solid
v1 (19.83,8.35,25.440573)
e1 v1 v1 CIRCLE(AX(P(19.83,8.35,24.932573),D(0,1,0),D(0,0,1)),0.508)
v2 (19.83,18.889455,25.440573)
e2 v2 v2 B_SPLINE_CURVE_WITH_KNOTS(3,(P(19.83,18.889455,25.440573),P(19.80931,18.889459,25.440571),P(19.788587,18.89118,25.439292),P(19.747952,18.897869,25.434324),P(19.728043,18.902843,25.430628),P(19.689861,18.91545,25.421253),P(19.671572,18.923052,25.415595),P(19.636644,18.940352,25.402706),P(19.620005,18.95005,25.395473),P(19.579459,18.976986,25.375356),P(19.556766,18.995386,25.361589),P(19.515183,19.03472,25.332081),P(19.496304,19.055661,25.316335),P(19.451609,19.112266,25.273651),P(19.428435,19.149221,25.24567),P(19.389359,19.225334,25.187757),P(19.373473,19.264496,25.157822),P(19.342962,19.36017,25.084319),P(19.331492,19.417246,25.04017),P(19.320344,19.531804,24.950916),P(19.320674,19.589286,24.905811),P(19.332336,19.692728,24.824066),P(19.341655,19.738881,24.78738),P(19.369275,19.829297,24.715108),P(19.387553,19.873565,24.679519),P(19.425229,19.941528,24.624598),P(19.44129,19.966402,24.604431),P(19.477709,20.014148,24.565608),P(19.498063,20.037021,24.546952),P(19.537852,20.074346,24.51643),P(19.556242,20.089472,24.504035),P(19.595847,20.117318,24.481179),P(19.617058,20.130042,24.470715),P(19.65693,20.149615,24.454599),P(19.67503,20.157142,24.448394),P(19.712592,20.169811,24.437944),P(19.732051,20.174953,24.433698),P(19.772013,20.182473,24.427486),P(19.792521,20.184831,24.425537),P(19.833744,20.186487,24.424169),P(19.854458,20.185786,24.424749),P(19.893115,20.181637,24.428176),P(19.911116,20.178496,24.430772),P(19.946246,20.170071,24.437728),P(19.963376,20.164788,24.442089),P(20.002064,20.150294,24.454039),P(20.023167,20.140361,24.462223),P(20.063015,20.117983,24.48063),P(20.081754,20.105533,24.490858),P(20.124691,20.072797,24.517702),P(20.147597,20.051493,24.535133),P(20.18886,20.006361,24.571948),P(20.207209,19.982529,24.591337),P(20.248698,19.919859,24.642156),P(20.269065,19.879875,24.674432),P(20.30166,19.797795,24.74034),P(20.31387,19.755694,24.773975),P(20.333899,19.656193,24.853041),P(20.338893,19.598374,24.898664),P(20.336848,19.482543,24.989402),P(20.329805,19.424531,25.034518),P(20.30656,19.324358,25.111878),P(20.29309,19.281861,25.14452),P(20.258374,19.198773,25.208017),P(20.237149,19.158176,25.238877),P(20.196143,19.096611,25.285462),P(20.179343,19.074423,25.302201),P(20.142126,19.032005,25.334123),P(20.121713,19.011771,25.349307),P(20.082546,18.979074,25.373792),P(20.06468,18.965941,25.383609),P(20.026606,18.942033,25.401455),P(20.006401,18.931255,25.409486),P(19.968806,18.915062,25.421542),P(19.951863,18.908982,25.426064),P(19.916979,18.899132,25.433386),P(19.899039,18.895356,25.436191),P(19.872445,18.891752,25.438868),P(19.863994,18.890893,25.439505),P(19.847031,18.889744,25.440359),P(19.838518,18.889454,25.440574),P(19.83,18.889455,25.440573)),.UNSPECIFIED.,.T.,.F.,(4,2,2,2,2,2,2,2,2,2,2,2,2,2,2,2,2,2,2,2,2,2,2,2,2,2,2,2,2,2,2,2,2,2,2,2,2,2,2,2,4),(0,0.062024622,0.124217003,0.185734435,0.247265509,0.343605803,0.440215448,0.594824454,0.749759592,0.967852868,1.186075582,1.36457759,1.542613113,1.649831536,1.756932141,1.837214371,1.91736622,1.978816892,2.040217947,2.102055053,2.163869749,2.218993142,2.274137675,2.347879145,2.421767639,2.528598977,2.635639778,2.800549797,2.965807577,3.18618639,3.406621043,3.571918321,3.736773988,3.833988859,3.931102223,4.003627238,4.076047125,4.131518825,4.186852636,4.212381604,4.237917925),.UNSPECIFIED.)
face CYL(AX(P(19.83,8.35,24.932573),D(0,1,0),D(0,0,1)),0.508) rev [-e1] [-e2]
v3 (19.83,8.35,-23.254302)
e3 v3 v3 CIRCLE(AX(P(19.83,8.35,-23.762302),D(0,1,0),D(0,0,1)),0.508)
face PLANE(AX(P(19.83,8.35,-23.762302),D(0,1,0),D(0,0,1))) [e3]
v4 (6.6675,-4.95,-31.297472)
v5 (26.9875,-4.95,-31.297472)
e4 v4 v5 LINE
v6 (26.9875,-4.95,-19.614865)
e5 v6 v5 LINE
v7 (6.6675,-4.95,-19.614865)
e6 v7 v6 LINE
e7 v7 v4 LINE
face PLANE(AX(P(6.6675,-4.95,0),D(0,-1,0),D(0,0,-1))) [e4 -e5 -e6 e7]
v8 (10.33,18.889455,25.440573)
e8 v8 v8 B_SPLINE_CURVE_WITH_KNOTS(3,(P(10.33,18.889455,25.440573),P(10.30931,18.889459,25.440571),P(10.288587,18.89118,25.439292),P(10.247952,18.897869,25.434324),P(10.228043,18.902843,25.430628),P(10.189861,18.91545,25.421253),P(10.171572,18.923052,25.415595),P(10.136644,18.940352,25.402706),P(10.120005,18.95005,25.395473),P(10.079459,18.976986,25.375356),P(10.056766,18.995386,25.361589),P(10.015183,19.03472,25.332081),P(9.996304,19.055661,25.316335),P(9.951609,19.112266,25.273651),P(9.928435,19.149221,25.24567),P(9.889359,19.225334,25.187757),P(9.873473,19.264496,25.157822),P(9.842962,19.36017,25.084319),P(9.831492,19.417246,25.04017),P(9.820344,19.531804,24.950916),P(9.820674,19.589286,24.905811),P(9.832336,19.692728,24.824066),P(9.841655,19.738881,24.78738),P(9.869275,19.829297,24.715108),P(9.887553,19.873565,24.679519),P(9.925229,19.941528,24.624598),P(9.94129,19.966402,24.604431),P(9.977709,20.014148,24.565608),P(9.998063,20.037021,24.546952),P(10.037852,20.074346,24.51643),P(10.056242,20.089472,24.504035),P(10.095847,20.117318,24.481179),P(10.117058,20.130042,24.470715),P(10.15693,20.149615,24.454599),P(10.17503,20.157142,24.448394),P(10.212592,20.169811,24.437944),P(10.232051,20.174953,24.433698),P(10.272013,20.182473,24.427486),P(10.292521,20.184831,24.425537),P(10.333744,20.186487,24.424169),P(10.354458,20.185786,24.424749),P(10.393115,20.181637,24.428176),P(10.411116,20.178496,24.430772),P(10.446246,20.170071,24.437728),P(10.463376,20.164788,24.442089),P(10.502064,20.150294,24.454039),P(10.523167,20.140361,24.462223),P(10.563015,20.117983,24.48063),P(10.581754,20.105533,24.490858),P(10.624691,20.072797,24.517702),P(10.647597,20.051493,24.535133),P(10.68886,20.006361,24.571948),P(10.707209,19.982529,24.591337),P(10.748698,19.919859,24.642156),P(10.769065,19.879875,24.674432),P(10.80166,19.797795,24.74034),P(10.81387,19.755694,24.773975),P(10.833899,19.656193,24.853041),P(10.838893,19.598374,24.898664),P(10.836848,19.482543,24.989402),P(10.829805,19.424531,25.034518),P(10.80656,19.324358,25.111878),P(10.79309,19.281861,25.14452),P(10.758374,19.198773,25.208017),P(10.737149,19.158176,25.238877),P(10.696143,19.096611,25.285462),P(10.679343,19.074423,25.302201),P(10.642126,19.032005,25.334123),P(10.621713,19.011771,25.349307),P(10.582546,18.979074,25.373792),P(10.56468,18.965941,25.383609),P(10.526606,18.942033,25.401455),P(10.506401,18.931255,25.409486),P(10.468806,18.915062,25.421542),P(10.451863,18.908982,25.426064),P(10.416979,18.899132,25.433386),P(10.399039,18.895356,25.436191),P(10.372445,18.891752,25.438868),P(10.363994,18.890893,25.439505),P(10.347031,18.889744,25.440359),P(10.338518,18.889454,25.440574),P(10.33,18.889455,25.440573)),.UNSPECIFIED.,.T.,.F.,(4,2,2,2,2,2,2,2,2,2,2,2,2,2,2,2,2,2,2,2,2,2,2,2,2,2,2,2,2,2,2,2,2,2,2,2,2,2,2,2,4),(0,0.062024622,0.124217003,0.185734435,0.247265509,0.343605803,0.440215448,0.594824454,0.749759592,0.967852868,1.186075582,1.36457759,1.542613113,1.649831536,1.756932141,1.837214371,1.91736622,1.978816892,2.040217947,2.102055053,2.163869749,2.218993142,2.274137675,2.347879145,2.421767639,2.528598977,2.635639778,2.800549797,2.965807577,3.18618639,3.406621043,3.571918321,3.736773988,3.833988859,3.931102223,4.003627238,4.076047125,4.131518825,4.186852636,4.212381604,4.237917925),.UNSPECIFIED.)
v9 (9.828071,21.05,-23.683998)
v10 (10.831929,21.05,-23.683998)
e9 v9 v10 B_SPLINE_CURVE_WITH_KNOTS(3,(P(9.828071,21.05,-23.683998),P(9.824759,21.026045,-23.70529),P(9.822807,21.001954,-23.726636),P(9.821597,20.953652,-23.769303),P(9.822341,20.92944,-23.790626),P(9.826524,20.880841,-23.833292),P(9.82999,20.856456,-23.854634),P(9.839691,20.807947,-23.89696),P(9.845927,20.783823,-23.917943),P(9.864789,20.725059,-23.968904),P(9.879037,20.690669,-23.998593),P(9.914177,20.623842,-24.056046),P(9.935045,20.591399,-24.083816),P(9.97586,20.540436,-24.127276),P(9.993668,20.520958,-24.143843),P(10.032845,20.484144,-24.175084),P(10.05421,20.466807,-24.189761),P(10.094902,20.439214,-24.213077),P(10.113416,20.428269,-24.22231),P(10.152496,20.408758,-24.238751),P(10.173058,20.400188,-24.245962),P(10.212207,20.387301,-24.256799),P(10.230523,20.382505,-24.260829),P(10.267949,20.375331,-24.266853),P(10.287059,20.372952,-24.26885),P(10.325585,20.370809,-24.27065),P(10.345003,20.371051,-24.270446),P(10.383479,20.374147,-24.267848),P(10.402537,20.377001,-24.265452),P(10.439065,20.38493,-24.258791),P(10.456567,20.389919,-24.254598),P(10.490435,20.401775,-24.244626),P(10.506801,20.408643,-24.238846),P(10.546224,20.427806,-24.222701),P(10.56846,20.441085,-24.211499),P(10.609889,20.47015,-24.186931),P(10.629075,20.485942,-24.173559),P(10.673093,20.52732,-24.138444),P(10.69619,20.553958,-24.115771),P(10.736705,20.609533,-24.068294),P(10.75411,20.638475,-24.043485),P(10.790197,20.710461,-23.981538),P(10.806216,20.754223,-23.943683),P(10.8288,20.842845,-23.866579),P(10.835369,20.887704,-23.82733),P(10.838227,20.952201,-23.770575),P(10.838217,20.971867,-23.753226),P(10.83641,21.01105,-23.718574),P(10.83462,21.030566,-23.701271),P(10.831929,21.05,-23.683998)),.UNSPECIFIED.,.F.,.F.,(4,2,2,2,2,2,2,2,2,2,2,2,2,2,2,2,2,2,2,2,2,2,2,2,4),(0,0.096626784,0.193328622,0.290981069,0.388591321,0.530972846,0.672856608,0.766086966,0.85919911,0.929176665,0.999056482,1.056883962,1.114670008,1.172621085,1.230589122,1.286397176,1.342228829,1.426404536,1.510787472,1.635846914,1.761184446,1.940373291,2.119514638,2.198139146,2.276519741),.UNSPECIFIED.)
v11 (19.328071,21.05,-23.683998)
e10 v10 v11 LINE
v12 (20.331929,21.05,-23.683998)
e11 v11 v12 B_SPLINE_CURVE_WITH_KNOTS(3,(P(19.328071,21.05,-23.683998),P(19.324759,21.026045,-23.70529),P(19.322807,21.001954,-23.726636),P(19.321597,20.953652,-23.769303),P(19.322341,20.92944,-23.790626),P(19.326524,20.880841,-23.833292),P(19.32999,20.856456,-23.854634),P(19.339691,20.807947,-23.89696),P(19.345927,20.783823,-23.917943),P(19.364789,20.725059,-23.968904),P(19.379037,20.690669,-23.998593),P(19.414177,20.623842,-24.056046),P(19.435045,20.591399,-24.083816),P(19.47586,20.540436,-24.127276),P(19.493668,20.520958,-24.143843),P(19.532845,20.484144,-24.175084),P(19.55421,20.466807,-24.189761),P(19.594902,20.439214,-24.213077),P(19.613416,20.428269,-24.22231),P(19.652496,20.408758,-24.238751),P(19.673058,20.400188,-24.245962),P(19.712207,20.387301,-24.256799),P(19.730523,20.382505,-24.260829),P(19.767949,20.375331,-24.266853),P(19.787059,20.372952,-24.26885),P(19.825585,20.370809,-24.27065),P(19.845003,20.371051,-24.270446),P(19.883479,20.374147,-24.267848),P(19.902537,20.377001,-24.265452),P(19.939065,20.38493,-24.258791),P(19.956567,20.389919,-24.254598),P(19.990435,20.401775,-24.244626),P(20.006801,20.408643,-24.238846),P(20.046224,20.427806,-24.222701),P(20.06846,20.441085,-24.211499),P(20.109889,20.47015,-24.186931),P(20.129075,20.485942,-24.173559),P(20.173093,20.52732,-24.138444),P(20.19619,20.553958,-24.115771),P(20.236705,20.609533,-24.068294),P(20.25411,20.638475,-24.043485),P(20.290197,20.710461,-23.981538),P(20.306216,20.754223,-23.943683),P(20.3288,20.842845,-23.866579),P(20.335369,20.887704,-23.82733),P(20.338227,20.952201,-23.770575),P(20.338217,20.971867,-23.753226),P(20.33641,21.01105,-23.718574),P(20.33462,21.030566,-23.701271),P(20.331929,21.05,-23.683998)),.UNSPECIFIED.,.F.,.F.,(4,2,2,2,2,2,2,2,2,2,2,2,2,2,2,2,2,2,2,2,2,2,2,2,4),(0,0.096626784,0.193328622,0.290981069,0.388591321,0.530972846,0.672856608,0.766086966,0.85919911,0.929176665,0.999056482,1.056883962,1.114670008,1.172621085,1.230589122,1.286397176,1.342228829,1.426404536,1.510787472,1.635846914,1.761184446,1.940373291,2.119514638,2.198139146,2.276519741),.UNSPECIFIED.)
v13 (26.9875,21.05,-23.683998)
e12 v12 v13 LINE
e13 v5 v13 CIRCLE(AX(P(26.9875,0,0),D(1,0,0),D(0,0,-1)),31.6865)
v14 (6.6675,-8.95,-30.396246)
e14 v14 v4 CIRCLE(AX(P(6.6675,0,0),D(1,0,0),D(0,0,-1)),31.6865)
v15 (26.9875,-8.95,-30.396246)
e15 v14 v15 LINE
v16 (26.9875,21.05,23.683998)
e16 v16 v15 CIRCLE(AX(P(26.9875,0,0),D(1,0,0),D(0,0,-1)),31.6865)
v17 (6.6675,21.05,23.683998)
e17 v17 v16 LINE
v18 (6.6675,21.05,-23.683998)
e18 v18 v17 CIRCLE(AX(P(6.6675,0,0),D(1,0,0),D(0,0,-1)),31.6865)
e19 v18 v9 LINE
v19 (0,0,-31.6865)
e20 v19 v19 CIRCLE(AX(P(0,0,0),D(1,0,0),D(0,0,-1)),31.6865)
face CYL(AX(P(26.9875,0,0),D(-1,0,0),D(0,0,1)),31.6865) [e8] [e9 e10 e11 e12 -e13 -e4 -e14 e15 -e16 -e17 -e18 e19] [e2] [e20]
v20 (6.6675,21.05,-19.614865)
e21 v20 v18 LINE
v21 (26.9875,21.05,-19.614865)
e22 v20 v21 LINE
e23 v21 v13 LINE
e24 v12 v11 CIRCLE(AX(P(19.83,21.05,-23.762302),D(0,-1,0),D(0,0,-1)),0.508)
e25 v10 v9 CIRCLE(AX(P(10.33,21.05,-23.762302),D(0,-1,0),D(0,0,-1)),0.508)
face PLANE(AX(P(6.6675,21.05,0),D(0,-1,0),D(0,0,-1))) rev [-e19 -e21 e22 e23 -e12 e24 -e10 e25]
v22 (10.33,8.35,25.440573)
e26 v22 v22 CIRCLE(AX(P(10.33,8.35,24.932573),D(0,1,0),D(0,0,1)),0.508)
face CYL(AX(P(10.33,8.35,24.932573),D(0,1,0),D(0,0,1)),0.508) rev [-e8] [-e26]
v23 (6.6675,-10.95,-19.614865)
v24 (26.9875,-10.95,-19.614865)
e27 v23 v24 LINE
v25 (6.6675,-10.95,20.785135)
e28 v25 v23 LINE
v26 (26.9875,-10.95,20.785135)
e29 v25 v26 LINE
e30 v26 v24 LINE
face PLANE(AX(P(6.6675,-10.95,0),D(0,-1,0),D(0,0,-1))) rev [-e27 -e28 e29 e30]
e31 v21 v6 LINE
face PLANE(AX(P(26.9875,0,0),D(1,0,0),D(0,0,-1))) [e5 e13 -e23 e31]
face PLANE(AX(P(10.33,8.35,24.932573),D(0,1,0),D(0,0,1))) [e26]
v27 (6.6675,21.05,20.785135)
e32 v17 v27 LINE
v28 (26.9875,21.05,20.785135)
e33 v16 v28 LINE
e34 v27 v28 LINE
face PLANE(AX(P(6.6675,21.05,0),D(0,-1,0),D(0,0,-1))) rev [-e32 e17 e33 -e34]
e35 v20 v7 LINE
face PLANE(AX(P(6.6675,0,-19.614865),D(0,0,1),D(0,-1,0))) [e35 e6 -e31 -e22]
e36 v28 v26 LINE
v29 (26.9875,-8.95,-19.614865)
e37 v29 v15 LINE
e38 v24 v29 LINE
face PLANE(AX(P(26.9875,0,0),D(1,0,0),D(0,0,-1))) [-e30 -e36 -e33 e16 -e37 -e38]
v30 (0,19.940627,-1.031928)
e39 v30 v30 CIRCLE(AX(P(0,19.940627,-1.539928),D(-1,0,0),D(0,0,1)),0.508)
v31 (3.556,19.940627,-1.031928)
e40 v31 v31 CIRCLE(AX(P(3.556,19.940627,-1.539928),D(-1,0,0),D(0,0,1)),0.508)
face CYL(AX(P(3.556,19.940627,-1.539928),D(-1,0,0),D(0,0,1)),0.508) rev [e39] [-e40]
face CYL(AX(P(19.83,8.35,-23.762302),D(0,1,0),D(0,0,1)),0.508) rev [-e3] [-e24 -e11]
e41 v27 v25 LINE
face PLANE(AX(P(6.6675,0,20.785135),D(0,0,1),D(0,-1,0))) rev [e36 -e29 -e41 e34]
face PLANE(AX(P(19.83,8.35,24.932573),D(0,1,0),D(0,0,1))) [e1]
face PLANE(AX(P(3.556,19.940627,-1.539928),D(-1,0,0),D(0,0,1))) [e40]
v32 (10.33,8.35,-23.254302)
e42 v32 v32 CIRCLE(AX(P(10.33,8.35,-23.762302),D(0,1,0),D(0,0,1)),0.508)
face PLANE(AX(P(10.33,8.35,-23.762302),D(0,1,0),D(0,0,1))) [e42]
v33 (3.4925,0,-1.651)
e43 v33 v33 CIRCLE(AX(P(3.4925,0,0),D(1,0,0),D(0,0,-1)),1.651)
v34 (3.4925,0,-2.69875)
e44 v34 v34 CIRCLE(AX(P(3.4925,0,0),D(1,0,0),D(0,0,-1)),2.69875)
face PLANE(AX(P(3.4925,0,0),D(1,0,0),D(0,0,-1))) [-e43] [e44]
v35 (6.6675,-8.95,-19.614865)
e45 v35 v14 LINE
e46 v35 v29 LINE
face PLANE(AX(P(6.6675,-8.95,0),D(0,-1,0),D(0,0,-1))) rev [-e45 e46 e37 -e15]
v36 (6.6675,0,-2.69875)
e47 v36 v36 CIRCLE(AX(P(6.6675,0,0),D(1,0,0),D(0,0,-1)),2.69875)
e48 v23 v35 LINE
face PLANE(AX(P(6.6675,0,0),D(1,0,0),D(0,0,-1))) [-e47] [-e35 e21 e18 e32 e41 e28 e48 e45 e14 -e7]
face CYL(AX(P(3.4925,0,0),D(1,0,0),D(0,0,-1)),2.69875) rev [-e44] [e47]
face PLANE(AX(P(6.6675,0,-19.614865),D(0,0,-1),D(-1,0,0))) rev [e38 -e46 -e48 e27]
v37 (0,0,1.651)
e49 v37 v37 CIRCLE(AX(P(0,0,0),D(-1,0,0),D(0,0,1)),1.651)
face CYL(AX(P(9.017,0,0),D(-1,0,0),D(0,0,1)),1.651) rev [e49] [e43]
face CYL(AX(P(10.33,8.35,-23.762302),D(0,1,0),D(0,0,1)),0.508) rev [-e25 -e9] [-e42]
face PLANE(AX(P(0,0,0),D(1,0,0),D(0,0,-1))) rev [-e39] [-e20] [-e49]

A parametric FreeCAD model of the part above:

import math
import FreeCAD as App
import Part
import Sketcher

V = App.Vector
Q = App.Units.Quantity

doc = App.newDocument("Part")
body = doc.addObject("PartDesign::Body", "Body")

# Sketch on YZ plane
sketch1 = doc.addObject("Sketcher::SketchObject", "Sketch")
body.addObject(sketch1)
sketch1.AttachmentSupport = (doc.YZ_Plane, [""])
sketch1.MapMode = "FlatFace"
sketch1.addGeometry(Part.Circle(V(0, 0, 0), V(0, 0, 1), 32), False)
sketch1.addConstraint([
    Sketcher.Constraint("Coincident", 0, 3, -1, 1),
    Sketcher.Constraint("Diameter", 0, Q("2.495 in")),
])
pad1 = doc.addObject("PartDesign::Pad", "Pad")
body.addObject(pad1)
pad1.Profile = sketch1
pad1.Length = Q("1.0625 in")

# Sketch on YZ plane
sketch2 = doc.addObject("Sketcher::SketchObject", "Sketch001")
body.addObject(sketch2)
sketch2.AttachmentSupport = (doc.YZ_Plane, [""])
sketch2.MapMode = "FlatFace"
sketch2.AttachmentOffset = App.Placement(V(0, 0, 1.0625 * 25.4), App.Rotation())
sketch2.addGeometry([
    Part.LineSegment(V(-8.9, -19.6, 0), V(-8.9, -30.4, 0)),  # 0
    Part.ArcOfCircle(Part.Circle(V(0, 0, 0), V(0, 0, 1), 31.7), math.radians(-106.41), math.radians(-98.99)),  # 1
    Part.LineSegment(V(-5, -31.3, 0), V(-5, -19.6, 0)),  # 2
    Part.LineSegment(V(-5, -19.6, 0), V(21.1, -19.6, 0)),  # 3
    Part.LineSegment(V(21.1, -19.6, 0), V(21.1, -23.7, 0)),  # 4
    Part.ArcOfCircle(Part.Circle(V(0, 0, 0), V(0, 0, 1), 31.7), math.radians(-48), math.radians(48)),  # 5
    Part.LineSegment(V(21.1, 23.7, 0), V(21.1, 20.8, 0)),  # 6
    Part.LineSegment(V(21.1, 20.8, 0), V(-10.9, 20.8, 0)),  # 7
    Part.LineSegment(V(-10.9, 20.8, 0), V(-10.9, -19.6, 0)),  # 8
    Part.LineSegment(V(-10.9, -19.6, 0), V(-8.9, -19.6, 0)),  # 9
], False)
sketch2.addConstraint([
    Sketcher.Constraint("Coincident", 0, 2, 1, 1),
    Sketcher.Constraint("Coincident", 1, 2, 2, 1),
    Sketcher.Constraint("Coincident", 2, 2, 3, 1),
    Sketcher.Constraint("Coincident", 3, 2, 4, 1),
    Sketcher.Constraint("Coincident", 4, 2, 5, 1),
    Sketcher.Constraint("Coincident", 5, 2, 6, 1),
    Sketcher.Constraint("Coincident", 6, 2, 7, 1),
    Sketcher.Constraint("Coincident", 7, 2, 8, 1),
    Sketcher.Constraint("Coincident", 8, 2, 9, 1),
    Sketcher.Constraint("Coincident", 9, 2, 0, 1),
    Sketcher.Constraint("Vertical", 0),
    Sketcher.Constraint("Vertical", 2),
    Sketcher.Constraint("Horizontal", 3),
    Sketcher.Constraint("Vertical", 4),
    Sketcher.Constraint("Vertical", 6),
    Sketcher.Constraint("Horizontal", 7),
    Sketcher.Constraint("Vertical", 8),
    Sketcher.Constraint("Horizontal", 9),
    Sketcher.Constraint("Coincident", 1, 3, -1, 1),
    Sketcher.Constraint("Coincident", 5, 3, -1, 1),
    Sketcher.Constraint("Equal", 1, 5),
    Sketcher.Constraint("Horizontal", 3, 2, 8, 2),
    Sketcher.Constraint("Vertical", 4, 2, 5, 2),
    Sketcher.Constraint("Radius", 1, Q("1.2475 in")),
    Sketcher.Constraint("DistanceX", 3, 1, 3, 2, Q("26 mm")),
    Sketcher.Constraint("DistanceX", 7, 2, 7, 1, Q("32 mm")),
    Sketcher.Constraint("DistanceX", 9, 1, 9, 2, Q("2 mm")),
    Sketcher.Constraint("DistanceY", 8, 2, 8, 1, Q("40.4 mm")),
    Sketcher.Constraint("DistanceY", 0, 2, 0, 1, Q("10.781382 mm")),
    Sketcher.Constraint("DistanceX", 0, 2, -1, 1, Q("8.95 mm")),
])
pocket1 = doc.addObject("PartDesign::Pocket", "Pocket")
body.addObject(pocket1)
pocket1.Profile = sketch2
pocket1.Length = Q("0.8 in")

# Sketch on XZ plane
sketch3 = doc.addObject("Sketcher::SketchObject", "Sketch002")
body.addObject(sketch3)
sketch3.AttachmentSupport = (doc.XZ_Plane, [""])
sketch3.MapMode = "FlatFace"
sketch3.AttachmentOffset = App.Placement(V(0, 0, -21.05), App.Rotation())
sketch3.addGeometry([
    Part.Circle(V(10.3, 24.9, 0), V(0, 0, 1), 0.5),
    Part.Circle(V(19.8, 24.9, 0), V(0, 0, 1), 0.5),
    Part.Circle(V(10.3, -23.8, 0), V(0, 0, 1), 0.5),
    Part.Circle(V(19.8, -23.8, 0), V(0, 0, 1), 0.5),
], False)
sketch3.addConstraint([
    Sketcher.Constraint("Equal", 0, 1),
    Sketcher.Constraint("Equal", 1, 2),
    Sketcher.Constraint("Equal", 2, 3),
    Sketcher.Constraint("Horizontal", 0, 3, 1, 3),
    Sketcher.Constraint("Horizontal", 2, 3, 3, 3),
    Sketcher.Constraint("Vertical", 0, 3, 2, 3),
    Sketcher.Constraint("Vertical", 1, 3, 3, 3),
    Sketcher.Constraint("Diameter", 0, Q("0.04 in")),
    Sketcher.Constraint("DistanceX", -1, 1, 0, 3, Q("10.33 mm")),
    Sketcher.Constraint("DistanceX", -1, 1, 1, 3, Q("19.83 mm")),
    Sketcher.Constraint("DistanceY", -1, 1, 0, 3, Q("24.932573 mm")),
    Sketcher.Constraint("DistanceY", 2, 3, -1, 1, Q("23.762302 mm")),
])
pocket2 = doc.addObject("PartDesign::Pocket", "Pocket001")
body.addObject(pocket2)
pocket2.Profile = sketch3
pocket2.Length = Q("0.5 in")
pocket2.Reversed = True

# Sketch on YZ plane
sketch4 = doc.addObject("Sketcher::SketchObject", "Sketch003")
body.addObject(sketch4)
sketch4.AttachmentSupport = (doc.YZ_Plane, [""])
sketch4.MapMode = "FlatFace"
sketch4.addGeometry(Part.Circle(V(19.9, -1.5, 0), V(0, 0, 1), 0.5), False)
sketch4.addConstraint([
    Sketcher.Constraint("Diameter", 0, Q("0.04 in")),
    Sketcher.Constraint("DistanceX", -1, 1, 0, 3, Q("19.940627 mm")),
    Sketcher.Constraint("DistanceY", 0, 3, -1, 1, Q("1.539928 mm")),
])
pocket3 = doc.addObject("PartDesign::Pocket", "Pocket002")
body.addObject(pocket3)
pocket3.Profile = sketch4
pocket3.Length = Q("0.14 in")
pocket3.Reversed = True

# Sketch on YZ plane
sketch5 = doc.addObject("Sketcher::SketchObject", "Sketch004")
body.addObject(sketch5)
sketch5.AttachmentSupport = (doc.YZ_Plane, [""])
sketch5.MapMode = "FlatFace"
sketch5.AttachmentOffset = App.Placement(V(0, 0, 0.2625 * 25.4), App.Rotation())
sketch5.addGeometry(Part.Circle(V(0, 0, 0), V(0, 0, 1), 2.7), False)
sketch5.addConstraint([
    Sketcher.Constraint("Coincident", 0, 3, -1, 1),
    Sketcher.Constraint("Diameter", 0, Q("0.2125 in")),
])
pad2 = doc.addObject("PartDesign::Pad", "Pad001")
body.addObject(pad2)
pad2.Profile = sketch5
pad2.Length = Q("0.125 in")
pad2.Reversed = True

# Sketch on YZ plane
sketch6 = doc.addObject("Sketcher::SketchObject", "Sketch005")
body.addObject(sketch6)
sketch6.AttachmentSupport = (doc.YZ_Plane, [""])
sketch6.MapMode = "FlatFace"
sketch6.AttachmentOffset = App.Placement(V(0, 0, 0.2625 * 25.4), App.Rotation())
sketch6.addGeometry(Part.Circle(V(0, 0, 0), V(0, 0, 1), 2.7), False)
sketch6.addConstraint([
    Sketcher.Constraint("Coincident", 0, 3, -1, 1),
    Sketcher.Constraint("Diameter", 0, Q("0.2125 in")),
])
pocket4 = doc.addObject("PartDesign::Pocket", "Pocket003")
body.addObject(pocket4)
pocket4.Profile = sketch6
pocket4.Length = Q("0.125 in")

# Sketch on YZ plane
sketch7 = doc.addObject("Sketcher::SketchObject", "Sketch006")
body.addObject(sketch7)
sketch7.AttachmentSupport = (doc.YZ_Plane, [""])
sketch7.MapMode = "FlatFace"
sketch7.addGeometry(Part.Circle(V(0, 0, 0), V(0, 0, 1), 1.7), False)
sketch7.addConstraint([
    Sketcher.Constraint("Coincident", 0, 3, -1, 1),
    Sketcher.Constraint("Diameter", 0, Q("0.13 in")),
])
pocket5 = doc.addObject("PartDesign::Pocket", "Pocket004")
body.addObject(pocket5)
pocket5.Profile = sketch7
pocket5.Length = Q("0.355 in")
pocket5.Reversed = True

doc.recompute()
